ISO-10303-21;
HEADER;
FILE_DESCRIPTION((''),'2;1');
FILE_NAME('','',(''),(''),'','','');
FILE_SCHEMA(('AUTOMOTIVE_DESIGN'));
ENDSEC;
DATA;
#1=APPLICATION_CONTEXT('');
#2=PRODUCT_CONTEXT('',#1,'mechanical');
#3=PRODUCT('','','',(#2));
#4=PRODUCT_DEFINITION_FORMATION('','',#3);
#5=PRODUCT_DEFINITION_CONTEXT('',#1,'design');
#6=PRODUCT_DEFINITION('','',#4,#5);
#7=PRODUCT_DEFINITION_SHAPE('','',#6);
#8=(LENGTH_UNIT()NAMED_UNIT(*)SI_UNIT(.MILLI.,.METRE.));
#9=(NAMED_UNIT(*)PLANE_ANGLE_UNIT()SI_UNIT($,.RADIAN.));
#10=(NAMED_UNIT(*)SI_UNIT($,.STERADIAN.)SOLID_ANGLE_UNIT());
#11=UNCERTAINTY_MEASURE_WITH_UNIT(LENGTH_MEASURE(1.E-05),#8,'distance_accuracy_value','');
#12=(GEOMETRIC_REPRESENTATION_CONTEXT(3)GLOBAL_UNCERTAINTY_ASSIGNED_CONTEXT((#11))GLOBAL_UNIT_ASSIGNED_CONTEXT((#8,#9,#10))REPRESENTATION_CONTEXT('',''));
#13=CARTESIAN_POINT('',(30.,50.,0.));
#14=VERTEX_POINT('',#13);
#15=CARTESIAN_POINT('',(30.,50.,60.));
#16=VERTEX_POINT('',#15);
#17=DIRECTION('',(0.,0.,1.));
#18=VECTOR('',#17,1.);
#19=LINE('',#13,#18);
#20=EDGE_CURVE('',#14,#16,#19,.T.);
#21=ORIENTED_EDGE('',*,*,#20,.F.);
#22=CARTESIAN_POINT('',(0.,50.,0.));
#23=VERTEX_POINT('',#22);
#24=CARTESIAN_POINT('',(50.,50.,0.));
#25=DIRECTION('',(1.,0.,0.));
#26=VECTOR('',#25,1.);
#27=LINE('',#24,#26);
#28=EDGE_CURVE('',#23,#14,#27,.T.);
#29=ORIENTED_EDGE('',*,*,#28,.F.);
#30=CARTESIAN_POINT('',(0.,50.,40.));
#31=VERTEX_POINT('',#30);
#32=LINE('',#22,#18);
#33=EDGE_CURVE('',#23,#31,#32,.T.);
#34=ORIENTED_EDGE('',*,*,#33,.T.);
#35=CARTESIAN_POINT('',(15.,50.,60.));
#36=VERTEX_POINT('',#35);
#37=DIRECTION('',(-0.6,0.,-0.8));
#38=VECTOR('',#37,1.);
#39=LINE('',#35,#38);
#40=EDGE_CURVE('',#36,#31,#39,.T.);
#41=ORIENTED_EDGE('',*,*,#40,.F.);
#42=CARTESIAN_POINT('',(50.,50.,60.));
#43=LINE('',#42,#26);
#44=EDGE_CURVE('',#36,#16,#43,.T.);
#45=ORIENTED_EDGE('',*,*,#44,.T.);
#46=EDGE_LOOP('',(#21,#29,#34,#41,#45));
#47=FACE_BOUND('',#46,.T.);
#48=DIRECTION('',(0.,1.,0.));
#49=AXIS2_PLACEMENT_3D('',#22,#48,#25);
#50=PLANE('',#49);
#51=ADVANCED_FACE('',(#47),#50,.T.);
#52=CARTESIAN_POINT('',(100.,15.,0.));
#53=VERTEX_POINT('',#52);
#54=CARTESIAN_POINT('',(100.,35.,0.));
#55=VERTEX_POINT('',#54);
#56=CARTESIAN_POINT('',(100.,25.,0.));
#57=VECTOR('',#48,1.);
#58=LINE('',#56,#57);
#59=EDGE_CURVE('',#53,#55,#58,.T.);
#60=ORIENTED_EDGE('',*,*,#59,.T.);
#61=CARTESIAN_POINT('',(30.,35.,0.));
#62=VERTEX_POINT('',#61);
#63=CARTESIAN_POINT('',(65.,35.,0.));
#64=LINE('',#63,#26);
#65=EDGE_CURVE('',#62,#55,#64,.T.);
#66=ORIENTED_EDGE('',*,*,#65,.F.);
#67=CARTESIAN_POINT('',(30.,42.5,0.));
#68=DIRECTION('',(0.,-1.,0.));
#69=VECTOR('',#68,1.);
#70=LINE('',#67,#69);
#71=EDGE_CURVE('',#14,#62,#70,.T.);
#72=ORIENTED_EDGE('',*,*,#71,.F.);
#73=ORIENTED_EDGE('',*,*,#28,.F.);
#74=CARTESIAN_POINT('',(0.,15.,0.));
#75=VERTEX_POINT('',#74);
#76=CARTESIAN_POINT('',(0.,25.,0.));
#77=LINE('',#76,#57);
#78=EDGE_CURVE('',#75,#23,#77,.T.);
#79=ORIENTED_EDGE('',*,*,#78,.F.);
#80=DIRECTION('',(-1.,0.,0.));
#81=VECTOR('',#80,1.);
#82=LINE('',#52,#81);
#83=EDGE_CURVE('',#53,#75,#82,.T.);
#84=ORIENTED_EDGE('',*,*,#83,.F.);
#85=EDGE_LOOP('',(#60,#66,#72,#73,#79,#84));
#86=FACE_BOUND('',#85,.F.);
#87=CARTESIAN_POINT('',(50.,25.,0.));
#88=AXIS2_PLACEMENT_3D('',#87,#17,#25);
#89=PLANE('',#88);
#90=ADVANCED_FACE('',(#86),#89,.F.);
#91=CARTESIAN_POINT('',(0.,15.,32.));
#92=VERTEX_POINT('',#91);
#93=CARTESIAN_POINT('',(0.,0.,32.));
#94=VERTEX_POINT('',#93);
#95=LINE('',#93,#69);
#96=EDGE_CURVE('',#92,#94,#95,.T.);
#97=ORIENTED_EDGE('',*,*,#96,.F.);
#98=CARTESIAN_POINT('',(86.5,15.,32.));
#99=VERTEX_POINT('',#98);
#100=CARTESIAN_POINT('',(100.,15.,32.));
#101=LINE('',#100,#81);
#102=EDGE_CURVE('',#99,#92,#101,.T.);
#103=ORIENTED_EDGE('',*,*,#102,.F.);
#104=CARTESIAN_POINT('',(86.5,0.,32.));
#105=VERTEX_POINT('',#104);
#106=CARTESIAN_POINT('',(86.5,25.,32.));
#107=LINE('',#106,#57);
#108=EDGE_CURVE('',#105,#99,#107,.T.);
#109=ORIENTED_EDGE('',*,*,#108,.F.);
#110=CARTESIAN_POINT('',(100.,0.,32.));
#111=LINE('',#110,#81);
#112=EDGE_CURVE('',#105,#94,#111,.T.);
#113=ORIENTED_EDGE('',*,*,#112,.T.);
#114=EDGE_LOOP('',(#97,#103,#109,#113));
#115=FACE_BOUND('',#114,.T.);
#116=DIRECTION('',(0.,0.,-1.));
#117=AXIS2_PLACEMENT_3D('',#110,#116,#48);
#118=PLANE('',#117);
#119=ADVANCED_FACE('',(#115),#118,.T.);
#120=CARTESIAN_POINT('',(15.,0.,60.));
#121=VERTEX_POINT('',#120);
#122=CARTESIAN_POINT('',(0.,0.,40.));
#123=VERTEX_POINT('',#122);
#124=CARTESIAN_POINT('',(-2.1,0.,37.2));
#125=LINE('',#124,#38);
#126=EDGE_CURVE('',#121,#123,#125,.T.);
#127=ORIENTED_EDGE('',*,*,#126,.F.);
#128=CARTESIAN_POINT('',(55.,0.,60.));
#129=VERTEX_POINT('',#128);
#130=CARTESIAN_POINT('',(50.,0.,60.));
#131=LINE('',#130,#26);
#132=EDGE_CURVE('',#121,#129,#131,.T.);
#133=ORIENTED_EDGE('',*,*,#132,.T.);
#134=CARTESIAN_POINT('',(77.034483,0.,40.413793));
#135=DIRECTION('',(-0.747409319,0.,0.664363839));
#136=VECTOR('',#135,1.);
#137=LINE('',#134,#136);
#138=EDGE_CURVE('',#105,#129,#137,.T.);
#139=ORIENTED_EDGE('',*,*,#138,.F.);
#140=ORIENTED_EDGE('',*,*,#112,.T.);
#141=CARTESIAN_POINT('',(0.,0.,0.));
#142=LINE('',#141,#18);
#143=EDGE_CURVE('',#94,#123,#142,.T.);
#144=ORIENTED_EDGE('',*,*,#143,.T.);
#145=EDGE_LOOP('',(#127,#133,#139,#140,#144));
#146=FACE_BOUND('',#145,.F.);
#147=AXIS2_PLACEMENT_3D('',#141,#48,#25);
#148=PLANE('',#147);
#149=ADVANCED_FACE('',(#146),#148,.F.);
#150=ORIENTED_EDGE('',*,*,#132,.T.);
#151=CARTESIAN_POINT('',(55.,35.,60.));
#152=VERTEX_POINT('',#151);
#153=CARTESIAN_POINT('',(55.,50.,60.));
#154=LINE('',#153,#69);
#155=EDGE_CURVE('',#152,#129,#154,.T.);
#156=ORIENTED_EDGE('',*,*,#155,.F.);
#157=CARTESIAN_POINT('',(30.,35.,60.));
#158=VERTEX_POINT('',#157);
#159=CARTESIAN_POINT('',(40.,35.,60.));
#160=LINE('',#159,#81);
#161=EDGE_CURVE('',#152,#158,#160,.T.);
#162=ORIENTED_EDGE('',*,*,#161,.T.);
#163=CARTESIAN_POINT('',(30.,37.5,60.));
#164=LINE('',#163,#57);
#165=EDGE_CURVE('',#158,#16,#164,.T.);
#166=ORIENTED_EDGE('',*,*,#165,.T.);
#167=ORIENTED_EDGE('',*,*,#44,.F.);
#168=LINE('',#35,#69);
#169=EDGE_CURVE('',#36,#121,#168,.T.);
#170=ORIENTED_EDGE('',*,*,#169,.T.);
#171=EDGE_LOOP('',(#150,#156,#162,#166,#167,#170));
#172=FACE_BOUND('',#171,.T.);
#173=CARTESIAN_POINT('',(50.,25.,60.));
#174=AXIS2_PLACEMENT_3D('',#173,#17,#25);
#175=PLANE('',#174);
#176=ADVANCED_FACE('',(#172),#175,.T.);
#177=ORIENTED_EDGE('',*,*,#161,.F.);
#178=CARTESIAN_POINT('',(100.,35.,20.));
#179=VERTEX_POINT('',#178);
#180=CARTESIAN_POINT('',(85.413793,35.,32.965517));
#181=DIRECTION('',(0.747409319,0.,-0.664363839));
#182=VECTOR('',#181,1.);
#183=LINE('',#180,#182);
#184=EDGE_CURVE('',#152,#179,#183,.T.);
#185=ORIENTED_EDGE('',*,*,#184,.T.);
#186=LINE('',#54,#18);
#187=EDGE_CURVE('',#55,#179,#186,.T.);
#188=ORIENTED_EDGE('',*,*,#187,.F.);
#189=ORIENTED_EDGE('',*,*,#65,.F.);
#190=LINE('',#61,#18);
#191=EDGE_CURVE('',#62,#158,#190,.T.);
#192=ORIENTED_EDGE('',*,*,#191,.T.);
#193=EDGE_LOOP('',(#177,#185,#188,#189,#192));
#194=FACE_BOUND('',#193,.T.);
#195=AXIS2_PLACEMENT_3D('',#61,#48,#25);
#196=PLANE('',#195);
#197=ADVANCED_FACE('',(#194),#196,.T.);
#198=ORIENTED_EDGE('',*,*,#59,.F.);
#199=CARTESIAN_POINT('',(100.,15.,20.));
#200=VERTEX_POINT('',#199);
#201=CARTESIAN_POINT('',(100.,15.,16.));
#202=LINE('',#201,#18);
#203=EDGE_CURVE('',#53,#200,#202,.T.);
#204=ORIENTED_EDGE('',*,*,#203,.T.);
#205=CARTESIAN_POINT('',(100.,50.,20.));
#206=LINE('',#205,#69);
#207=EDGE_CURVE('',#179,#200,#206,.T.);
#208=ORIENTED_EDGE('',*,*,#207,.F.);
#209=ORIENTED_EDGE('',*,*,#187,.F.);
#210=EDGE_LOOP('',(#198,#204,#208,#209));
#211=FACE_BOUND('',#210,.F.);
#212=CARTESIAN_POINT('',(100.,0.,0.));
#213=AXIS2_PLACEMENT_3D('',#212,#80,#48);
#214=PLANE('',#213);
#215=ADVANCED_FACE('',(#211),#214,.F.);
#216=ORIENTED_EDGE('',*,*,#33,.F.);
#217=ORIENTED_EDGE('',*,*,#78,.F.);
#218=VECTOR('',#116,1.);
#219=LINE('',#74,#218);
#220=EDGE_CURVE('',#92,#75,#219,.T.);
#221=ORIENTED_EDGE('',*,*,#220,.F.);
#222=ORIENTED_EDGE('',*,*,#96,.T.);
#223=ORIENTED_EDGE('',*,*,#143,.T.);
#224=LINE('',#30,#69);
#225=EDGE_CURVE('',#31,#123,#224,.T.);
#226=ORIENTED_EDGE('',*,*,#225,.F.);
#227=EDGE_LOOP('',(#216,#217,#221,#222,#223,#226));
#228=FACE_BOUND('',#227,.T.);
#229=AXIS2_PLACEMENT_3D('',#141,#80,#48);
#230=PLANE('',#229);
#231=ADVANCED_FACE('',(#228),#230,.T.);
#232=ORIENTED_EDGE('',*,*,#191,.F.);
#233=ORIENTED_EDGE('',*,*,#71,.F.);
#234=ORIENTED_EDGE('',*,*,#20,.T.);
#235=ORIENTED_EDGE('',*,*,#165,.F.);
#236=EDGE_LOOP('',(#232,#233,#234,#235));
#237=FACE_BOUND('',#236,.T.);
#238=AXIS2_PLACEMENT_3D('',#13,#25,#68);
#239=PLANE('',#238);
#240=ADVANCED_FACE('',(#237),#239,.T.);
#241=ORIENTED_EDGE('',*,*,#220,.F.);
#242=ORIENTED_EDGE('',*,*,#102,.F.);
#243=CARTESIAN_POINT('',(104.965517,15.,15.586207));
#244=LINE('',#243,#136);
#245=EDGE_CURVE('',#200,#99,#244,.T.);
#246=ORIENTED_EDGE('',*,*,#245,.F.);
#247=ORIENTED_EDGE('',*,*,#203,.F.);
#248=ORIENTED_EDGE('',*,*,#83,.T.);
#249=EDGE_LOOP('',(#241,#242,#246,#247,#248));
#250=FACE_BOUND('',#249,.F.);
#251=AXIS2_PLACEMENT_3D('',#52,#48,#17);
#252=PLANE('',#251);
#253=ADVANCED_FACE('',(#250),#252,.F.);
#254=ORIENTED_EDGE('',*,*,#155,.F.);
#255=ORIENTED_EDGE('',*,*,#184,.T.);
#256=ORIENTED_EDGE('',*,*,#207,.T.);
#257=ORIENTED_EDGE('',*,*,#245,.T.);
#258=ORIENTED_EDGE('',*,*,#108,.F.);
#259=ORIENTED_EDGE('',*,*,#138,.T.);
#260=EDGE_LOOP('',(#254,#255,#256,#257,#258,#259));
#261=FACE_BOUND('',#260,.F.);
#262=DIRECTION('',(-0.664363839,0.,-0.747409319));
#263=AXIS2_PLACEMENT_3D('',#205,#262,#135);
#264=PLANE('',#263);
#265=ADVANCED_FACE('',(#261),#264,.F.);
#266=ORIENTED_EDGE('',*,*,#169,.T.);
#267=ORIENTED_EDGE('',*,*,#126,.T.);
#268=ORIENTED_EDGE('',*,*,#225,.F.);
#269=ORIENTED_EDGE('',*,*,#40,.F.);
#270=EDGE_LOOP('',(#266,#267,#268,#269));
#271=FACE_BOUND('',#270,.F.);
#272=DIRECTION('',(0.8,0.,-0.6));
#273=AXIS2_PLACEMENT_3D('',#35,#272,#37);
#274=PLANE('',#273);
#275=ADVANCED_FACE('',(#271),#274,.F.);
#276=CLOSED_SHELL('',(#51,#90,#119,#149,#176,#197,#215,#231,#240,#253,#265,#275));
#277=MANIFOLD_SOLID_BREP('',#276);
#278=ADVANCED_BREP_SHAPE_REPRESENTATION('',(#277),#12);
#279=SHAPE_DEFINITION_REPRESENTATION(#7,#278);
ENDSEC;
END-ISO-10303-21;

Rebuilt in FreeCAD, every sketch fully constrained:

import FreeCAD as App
import Part
import Sketcher

V = App.Vector
Q = App.Units.Quantity

doc = App.newDocument("Part")
params = doc.addObject("Spreadsheet::Sheet", "Params")
for row, (alias, value) in enumerate([
    ("sketch1_width", "100 mm"),
    ("sketch1_height", "50 mm"),
    ("pad1_length", "60 mm"),
    ("sketch2_width", "15 mm"),
    ("sketch2_height", "32 mm"),
    ("sketch3_width", "15 mm"),
    ("sketch3_width2", "45 mm"),
    ("sketch3_height", "20 mm"),
    ("sketch3_height2", "40 mm"),
    ("sketch4_width", "70 mm"),
    ("sketch4_height", "15 mm"),
], start=1):
    params.set(f"A{row}", alias)
    params.set(f"B{row}", "=" + value)
    params.setAlias(f"B{row}", alias)

body = doc.addObject("PartDesign::Body", "Body")

# Sketch on XY plane
sketch1 = body.newObject("Sketcher::SketchObject", "Sketch")
sketch1.AttachmentSupport = (doc.getObject("XY_Plane"), [""])
sketch1.MapMode = "FlatFace"
sketch1.addGeometry([
    Part.LineSegment(V(0, 50, 0), V(0, 0, 0)),
    Part.LineSegment(V(0, 0, 0), V(100, 0, 0)),
    Part.LineSegment(V(100, 0, 0), V(100, 50, 0)),
    Part.LineSegment(V(100, 50, 0), V(0, 50, 0)),
], False)
sketch1.addConstraint([
    Sketcher.Constraint("Coincident", 0, 2, 1, 1),
    Sketcher.Constraint("Coincident", 1, 2, 2, 1),
    Sketcher.Constraint("Coincident", 2, 2, 3, 1),
    Sketcher.Constraint("Coincident", 3, 2, 0, 1),
    Sketcher.Constraint("Vertical", 0),
    Sketcher.Constraint("Horizontal", 1),
    Sketcher.Constraint("Vertical", 2),
    Sketcher.Constraint("Horizontal", 3),
    Sketcher.Constraint("Coincident", 0, 2, -1, 1),
    Sketcher.Constraint("DistanceX", 1, 1, 1, 2, Q("100 mm")),
    Sketcher.Constraint("DistanceY", 0, 2, 0, 1, Q("50 mm")),
])
sketch1.setExpression("Constraints[9]", "Params.sketch1_width")
sketch1.setExpression("Constraints[10]", "Params.sketch1_height")
pad1 = body.newObject("PartDesign::Pad", "Pad")
pad1.Profile = sketch1
pad1.setExpression("Length", "Params.pad1_length")

# Sketch on YZ plane
sketch2 = body.newObject("Sketcher::SketchObject", "Sketch001")
sketch2.AttachmentSupport = (doc.getObject("YZ_Plane"), [""])
sketch2.MapMode = "FlatFace"
sketch2.AttachmentOffset = App.Placement(V(0, 0, 100), App.Rotation())
sketch2.addGeometry([
    Part.LineSegment(V(0, 32, 0), V(0, 0, 0)),
    Part.LineSegment(V(0, 0, 0), V(15, 0, 0)),
    Part.LineSegment(V(15, 0, 0), V(15, 32, 0)),
    Part.LineSegment(V(15, 32, 0), V(0, 32, 0)),
], False)
sketch2.addConstraint([
    Sketcher.Constraint("Coincident", 0, 2, 1, 1),
    Sketcher.Constraint("Coincident", 1, 2, 2, 1),
    Sketcher.Constraint("Coincident", 2, 2, 3, 1),
    Sketcher.Constraint("Coincident", 3, 2, 0, 1),
    Sketcher.Constraint("Vertical", 0),
    Sketcher.Constraint("Horizontal", 1),
    Sketcher.Constraint("Vertical", 2),
    Sketcher.Constraint("Horizontal", 3),
    Sketcher.Constraint("Coincident", 0, 2, -1, 1),
    Sketcher.Constraint("DistanceX", 1, 1, 1, 2, Q("15 mm")),
    Sketcher.Constraint("DistanceY", 0, 2, 0, 1, Q("32 mm")),
])
sketch2.setExpression("Constraints[9]", "Params.sketch2_width")
sketch2.setExpression("Constraints[10]", "Params.sketch2_height")
pocket1 = body.newObject("PartDesign::Pocket", "Pocket")
pocket1.Profile = sketch2
pocket1.Type = "ThroughAll"

# Sketch on XZ plane
sketch3 = body.newObject("Sketcher::SketchObject", "Sketch002")
sketch3.AttachmentSupport = (doc.getObject("XZ_Plane"), [""])
sketch3.MapMode = "FlatFace"
sketch3.AttachmentOffset = App.Placement(V(0, 0, -50), App.Rotation())
sketch3.addGeometry([
    Part.LineSegment(V(0, 60, 0), V(15, 60, 0)),  # 0
    Part.LineSegment(V(15, 60, 0), V(0, 40, 0)),  # 1
    Part.LineSegment(V(0, 40, 0), V(0, 60, 0)),  # 2
    Part.LineSegment(V(100, 20, 0), V(55, 60, 0)),  # 3
    Part.LineSegment(V(55, 60, 0), V(100, 60, 0)),  # 4
    Part.LineSegment(V(100, 60, 0), V(100, 20, 0)),  # 5
], False)
sketch3.addConstraint([
    Sketcher.Constraint("Coincident", 0, 2, 1, 1),
    Sketcher.Constraint("Coincident", 1, 2, 2, 1),
    Sketcher.Constraint("Coincident", 2, 2, 0, 1),
    Sketcher.Constraint("Coincident", 3, 2, 4, 1),
    Sketcher.Constraint("Coincident", 4, 2, 5, 1),
    Sketcher.Constraint("Coincident", 5, 2, 3, 1),
    Sketcher.Constraint("Horizontal", 0),
    Sketcher.Constraint("Vertical", 2),
    Sketcher.Constraint("Horizontal", 4),
    Sketcher.Constraint("Vertical", 5),
    Sketcher.Constraint("PointOnObject", 1, 2, -2),
    Sketcher.Constraint("Horizontal", 2, 2, 3, 2),
    Sketcher.Constraint("DistanceX", 0, 1, 0, 2, Q("15 mm")),
    Sketcher.Constraint("DistanceX", 4, 1, 4, 2, Q("45 mm")),
    Sketcher.Constraint("DistanceY", 2, 1, 2, 2, Q("20 mm")),
    Sketcher.Constraint("DistanceY", 5, 2, 5, 1, Q("40 mm")),
    Sketcher.Constraint("DistanceY", -1, 1, 0, 2, Q("60 mm")),
    Sketcher.Constraint("DistanceX", -1, 1, 3, 2, Q("55 mm")),
])
sketch3.setExpression("Constraints[12]", "Params.sketch3_width")
sketch3.setExpression("Constraints[13]", "Params.sketch3_width2")
sketch3.setExpression("Constraints[14]", "Params.sketch3_height")
sketch3.setExpression("Constraints[15]", "Params.sketch3_height2")
pocket2 = body.newObject("PartDesign::Pocket", "Pocket001")
pocket2.Profile = sketch3
pocket2.Type = "ThroughAll"
pocket2.Reversed = True

# Sketch on XY plane
sketch4 = body.newObject("Sketcher::SketchObject", "Sketch003")
sketch4.AttachmentSupport = (doc.getObject("XY_Plane"), [""])
sketch4.MapMode = "FlatFace"
sketch4.addGeometry([
    Part.LineSegment(V(30, 35, 0), V(30, 50, 0)),
    Part.LineSegment(V(30, 50, 0), V(100, 50, 0)),
    Part.LineSegment(V(100, 50, 0), V(100, 35, 0)),
    Part.LineSegment(V(100, 35, 0), V(30, 35, 0)),
], False)
sketch4.addConstraint([
    Sketcher.Constraint("Coincident", 0, 2, 1, 1),
    Sketcher.Constraint("Coincident", 1, 2, 2, 1),
    Sketcher.Constraint("Coincident", 2, 2, 3, 1),
    Sketcher.Constraint("Coincident", 3, 2, 0, 1),
    Sketcher.Constraint("Vertical", 0),
    Sketcher.Constraint("Horizontal", 1),
    Sketcher.Constraint("Vertical", 2),
    Sketcher.Constraint("Horizontal", 3),
    Sketcher.Constraint("DistanceX", 1, 1, 1, 2, Q("70 mm")),
    Sketcher.Constraint("DistanceY", 0, 1, 0, 2, Q("15 mm")),
    Sketcher.Constraint("DistanceX", -1, 1, 0, 2, Q("30 mm")),
    Sketcher.Constraint("DistanceY", -1, 1, 0, 2, Q("50 mm")),
])
sketch4.setExpression("Constraints[8]", "Params.sketch4_width")
sketch4.setExpression("Constraints[9]", "Params.sketch4_height")
pocket3 = body.newObject("PartDesign::Pocket", "Pocket002")
pocket3.Profile = sketch4
pocket3.Type = "ThroughAll"
pocket3.Reversed = True

doc.recompute()
